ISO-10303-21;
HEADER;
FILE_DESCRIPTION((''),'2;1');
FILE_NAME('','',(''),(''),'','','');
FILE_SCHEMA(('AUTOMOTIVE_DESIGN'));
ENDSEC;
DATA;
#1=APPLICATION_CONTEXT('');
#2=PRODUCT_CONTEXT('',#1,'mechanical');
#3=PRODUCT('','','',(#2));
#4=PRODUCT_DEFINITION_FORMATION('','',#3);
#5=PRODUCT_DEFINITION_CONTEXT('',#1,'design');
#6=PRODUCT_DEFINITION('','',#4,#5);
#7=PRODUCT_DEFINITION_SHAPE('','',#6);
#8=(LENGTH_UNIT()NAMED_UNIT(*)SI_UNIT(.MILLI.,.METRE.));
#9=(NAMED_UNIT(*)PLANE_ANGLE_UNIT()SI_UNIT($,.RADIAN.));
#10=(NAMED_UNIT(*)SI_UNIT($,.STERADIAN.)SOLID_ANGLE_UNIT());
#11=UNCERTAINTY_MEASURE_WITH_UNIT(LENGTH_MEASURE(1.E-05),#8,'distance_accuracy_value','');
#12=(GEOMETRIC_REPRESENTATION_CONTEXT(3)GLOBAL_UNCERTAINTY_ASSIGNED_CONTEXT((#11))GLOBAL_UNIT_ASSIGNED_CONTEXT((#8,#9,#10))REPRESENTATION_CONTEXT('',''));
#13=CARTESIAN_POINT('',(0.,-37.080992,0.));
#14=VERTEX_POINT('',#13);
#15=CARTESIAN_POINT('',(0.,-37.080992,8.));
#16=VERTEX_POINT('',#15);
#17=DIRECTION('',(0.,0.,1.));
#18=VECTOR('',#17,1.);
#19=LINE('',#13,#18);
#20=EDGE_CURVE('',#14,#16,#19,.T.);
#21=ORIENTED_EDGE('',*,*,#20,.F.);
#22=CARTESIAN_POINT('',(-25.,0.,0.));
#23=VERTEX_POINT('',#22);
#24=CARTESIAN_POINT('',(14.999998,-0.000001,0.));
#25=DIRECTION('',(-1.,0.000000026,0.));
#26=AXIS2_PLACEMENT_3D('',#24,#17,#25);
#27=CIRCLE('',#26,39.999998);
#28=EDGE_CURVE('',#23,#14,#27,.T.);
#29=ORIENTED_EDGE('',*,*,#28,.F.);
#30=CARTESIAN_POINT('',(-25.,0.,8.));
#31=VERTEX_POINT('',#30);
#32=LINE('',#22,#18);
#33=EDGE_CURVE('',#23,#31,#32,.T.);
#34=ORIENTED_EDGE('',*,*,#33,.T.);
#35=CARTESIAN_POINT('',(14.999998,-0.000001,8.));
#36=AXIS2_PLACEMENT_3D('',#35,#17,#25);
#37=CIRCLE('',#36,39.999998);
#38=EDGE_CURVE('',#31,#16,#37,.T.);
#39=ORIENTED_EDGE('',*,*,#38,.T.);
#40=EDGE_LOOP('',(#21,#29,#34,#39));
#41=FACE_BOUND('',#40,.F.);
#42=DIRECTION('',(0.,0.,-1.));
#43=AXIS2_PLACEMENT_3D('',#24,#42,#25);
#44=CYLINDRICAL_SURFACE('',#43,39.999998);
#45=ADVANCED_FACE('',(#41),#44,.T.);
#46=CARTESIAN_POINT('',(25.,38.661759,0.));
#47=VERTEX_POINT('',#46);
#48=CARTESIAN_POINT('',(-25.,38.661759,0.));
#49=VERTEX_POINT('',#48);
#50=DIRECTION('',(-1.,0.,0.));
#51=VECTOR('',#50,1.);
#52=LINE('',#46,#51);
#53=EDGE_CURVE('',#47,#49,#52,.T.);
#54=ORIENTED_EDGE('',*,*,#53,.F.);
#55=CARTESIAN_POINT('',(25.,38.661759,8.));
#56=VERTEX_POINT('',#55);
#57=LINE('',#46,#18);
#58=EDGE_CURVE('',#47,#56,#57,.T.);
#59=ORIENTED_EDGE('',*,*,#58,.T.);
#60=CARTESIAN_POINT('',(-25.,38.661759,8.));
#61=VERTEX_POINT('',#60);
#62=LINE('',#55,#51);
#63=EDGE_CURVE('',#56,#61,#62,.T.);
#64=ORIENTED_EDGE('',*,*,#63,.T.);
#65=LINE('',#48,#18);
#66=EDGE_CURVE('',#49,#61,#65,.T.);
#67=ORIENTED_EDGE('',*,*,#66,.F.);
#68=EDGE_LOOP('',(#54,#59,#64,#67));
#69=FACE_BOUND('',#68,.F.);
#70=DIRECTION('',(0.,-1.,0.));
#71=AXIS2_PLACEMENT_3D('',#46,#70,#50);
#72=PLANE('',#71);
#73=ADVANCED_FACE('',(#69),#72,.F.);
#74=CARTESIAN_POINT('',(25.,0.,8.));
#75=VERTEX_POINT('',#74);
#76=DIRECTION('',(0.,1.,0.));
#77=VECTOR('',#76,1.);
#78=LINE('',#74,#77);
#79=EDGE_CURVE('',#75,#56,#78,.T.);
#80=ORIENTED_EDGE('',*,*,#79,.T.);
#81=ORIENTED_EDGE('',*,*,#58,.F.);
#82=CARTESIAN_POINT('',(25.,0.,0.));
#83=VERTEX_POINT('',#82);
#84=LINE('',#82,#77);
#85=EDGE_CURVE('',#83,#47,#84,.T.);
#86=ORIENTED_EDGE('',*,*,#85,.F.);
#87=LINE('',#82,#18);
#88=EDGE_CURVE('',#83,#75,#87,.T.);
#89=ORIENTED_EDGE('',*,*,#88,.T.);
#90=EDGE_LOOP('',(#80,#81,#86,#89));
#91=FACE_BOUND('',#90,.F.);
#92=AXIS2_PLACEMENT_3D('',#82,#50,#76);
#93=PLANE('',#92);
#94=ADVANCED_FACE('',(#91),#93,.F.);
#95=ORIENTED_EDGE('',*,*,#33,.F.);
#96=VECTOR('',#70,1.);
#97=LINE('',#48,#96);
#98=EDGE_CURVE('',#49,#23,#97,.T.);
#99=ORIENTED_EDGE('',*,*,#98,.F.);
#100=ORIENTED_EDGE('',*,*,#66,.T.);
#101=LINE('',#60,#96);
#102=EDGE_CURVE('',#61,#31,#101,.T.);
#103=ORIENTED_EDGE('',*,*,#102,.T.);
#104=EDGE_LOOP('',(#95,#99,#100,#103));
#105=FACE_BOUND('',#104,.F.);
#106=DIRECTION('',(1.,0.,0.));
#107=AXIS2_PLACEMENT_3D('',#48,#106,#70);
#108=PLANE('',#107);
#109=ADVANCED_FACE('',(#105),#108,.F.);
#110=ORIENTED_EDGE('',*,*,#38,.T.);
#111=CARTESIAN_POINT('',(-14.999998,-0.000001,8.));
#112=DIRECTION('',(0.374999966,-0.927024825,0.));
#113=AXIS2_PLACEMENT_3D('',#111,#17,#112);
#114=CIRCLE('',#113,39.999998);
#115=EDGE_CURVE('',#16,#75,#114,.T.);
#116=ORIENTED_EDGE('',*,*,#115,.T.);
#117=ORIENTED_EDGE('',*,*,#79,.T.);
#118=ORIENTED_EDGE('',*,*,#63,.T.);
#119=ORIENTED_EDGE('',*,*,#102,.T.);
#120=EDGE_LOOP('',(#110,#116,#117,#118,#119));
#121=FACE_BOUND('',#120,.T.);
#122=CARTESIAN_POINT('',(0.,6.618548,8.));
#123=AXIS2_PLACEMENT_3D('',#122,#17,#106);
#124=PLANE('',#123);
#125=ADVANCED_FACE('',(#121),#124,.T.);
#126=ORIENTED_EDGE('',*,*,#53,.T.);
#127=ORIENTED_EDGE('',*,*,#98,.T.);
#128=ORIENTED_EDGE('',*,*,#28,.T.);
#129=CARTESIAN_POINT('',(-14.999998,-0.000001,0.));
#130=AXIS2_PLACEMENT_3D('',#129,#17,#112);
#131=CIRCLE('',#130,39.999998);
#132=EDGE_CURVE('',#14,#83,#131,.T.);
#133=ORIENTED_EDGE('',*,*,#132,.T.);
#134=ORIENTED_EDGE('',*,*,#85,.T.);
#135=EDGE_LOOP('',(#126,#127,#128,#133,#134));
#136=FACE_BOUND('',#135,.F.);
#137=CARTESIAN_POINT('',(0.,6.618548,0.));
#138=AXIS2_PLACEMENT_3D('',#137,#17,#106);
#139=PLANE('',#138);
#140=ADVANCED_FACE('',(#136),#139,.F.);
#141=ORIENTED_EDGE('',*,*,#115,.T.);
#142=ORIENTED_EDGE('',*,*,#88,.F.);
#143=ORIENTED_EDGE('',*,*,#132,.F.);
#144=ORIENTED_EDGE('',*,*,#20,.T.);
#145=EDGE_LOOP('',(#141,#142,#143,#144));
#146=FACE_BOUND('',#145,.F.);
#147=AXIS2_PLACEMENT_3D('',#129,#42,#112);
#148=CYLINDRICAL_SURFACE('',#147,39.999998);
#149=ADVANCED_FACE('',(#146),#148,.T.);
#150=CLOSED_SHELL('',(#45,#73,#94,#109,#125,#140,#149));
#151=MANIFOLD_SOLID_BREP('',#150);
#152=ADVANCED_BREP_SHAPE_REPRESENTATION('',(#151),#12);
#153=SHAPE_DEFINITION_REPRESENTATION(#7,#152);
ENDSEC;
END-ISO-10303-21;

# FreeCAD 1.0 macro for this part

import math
import FreeCAD as App
import Part
import Sketcher
from FreeCAD import Vector
Q = App.Units.Quantity

doc = App.newDocument("Part")
params = doc.addObject("Spreadsheet::Sheet", "Params")
for row, (alias, value) in enumerate([
    ("sketch1_width", "50 mm"),
    ("pad1_length", "8 mm"),
], start=1):
    params.set(f"A{row}", alias)
    params.set(f"B{row}", "=" + value)
    params.setAlias(f"B{row}", alias)

body = doc.addObject("PartDesign::Body", "Body")

# Sketch on XY plane
sketch1 = body.newObject("Sketcher::SketchObject", "Sketch")
sketch1.AttachmentSupport = (doc.getObject("XY_Plane"), [""])
sketch1.MapMode = "FlatFace"
sketch1.addGeometry([
    Part.LineSegment(Vector(25, 38.661759, 0), Vector(-25, 38.661759, 0)),  # 0
    Part.LineSegment(Vector(-25, 38.661759, 0), Vector(-25, 0, 0)),  # 1
    Part.ArcOfCircle(Part.Circle(Vector(14.999998, -0.000001, 0), Vector(0, 0, 1), 39.999998), math.radians(179.999999), math.radians(247.975689)),  # 2
    Part.ArcOfCircle(Part.Circle(Vector(-14.999998, -0.000001, 0), Vector(0, 0, 1), 39.999998), math.radians(-67.975689), math.radians(0.000001)),  # 3
    Part.LineSegment(Vector(25, 0, 0), Vector(25, 38.661759, 0)),  # 4
], False)
sketch1.addConstraint([
    Sketcher.Constraint("Coincident", 0, 2, 1, 1),
    Sketcher.Constraint("Tangent", 1, 2, 2, 1),
    Sketcher.Constraint("Coincident", 2, 2, 3, 1),
    Sketcher.Constraint("Tangent", 3, 2, 4, 1),
    Sketcher.Constraint("Coincident", 4, 2, 0, 1),
    Sketcher.Constraint("Horizontal", 0),
    Sketcher.Constraint("Vertical", 1),
    Sketcher.Constraint("Vertical", 4),
    Sketcher.Constraint("Equal", 2, 3),
    Sketcher.Constraint("Symmetric", 2, 3, 3, 3, -1, 1),
    Sketcher.Constraint("PointOnObject", 2, 3, -1),
    Sketcher.Constraint("DistanceX", 0, 2, 0, 1, Q("50 mm")),
    Sketcher.Constraint("Radius", 2, Q("39.999998 mm")),
    Sketcher.Constraint("DistanceY", 1, 2, 1, 1, Q("38.661759 mm")),
])
sketch1.setExpression("Constraints[11]", "Params.sketch1_width")
pad1 = body.newObject("PartDesign::Pad", "Pad")
pad1.Profile = sketch1
pad1.setExpression("Length", "Params.pad1_length")

doc.recompute()
